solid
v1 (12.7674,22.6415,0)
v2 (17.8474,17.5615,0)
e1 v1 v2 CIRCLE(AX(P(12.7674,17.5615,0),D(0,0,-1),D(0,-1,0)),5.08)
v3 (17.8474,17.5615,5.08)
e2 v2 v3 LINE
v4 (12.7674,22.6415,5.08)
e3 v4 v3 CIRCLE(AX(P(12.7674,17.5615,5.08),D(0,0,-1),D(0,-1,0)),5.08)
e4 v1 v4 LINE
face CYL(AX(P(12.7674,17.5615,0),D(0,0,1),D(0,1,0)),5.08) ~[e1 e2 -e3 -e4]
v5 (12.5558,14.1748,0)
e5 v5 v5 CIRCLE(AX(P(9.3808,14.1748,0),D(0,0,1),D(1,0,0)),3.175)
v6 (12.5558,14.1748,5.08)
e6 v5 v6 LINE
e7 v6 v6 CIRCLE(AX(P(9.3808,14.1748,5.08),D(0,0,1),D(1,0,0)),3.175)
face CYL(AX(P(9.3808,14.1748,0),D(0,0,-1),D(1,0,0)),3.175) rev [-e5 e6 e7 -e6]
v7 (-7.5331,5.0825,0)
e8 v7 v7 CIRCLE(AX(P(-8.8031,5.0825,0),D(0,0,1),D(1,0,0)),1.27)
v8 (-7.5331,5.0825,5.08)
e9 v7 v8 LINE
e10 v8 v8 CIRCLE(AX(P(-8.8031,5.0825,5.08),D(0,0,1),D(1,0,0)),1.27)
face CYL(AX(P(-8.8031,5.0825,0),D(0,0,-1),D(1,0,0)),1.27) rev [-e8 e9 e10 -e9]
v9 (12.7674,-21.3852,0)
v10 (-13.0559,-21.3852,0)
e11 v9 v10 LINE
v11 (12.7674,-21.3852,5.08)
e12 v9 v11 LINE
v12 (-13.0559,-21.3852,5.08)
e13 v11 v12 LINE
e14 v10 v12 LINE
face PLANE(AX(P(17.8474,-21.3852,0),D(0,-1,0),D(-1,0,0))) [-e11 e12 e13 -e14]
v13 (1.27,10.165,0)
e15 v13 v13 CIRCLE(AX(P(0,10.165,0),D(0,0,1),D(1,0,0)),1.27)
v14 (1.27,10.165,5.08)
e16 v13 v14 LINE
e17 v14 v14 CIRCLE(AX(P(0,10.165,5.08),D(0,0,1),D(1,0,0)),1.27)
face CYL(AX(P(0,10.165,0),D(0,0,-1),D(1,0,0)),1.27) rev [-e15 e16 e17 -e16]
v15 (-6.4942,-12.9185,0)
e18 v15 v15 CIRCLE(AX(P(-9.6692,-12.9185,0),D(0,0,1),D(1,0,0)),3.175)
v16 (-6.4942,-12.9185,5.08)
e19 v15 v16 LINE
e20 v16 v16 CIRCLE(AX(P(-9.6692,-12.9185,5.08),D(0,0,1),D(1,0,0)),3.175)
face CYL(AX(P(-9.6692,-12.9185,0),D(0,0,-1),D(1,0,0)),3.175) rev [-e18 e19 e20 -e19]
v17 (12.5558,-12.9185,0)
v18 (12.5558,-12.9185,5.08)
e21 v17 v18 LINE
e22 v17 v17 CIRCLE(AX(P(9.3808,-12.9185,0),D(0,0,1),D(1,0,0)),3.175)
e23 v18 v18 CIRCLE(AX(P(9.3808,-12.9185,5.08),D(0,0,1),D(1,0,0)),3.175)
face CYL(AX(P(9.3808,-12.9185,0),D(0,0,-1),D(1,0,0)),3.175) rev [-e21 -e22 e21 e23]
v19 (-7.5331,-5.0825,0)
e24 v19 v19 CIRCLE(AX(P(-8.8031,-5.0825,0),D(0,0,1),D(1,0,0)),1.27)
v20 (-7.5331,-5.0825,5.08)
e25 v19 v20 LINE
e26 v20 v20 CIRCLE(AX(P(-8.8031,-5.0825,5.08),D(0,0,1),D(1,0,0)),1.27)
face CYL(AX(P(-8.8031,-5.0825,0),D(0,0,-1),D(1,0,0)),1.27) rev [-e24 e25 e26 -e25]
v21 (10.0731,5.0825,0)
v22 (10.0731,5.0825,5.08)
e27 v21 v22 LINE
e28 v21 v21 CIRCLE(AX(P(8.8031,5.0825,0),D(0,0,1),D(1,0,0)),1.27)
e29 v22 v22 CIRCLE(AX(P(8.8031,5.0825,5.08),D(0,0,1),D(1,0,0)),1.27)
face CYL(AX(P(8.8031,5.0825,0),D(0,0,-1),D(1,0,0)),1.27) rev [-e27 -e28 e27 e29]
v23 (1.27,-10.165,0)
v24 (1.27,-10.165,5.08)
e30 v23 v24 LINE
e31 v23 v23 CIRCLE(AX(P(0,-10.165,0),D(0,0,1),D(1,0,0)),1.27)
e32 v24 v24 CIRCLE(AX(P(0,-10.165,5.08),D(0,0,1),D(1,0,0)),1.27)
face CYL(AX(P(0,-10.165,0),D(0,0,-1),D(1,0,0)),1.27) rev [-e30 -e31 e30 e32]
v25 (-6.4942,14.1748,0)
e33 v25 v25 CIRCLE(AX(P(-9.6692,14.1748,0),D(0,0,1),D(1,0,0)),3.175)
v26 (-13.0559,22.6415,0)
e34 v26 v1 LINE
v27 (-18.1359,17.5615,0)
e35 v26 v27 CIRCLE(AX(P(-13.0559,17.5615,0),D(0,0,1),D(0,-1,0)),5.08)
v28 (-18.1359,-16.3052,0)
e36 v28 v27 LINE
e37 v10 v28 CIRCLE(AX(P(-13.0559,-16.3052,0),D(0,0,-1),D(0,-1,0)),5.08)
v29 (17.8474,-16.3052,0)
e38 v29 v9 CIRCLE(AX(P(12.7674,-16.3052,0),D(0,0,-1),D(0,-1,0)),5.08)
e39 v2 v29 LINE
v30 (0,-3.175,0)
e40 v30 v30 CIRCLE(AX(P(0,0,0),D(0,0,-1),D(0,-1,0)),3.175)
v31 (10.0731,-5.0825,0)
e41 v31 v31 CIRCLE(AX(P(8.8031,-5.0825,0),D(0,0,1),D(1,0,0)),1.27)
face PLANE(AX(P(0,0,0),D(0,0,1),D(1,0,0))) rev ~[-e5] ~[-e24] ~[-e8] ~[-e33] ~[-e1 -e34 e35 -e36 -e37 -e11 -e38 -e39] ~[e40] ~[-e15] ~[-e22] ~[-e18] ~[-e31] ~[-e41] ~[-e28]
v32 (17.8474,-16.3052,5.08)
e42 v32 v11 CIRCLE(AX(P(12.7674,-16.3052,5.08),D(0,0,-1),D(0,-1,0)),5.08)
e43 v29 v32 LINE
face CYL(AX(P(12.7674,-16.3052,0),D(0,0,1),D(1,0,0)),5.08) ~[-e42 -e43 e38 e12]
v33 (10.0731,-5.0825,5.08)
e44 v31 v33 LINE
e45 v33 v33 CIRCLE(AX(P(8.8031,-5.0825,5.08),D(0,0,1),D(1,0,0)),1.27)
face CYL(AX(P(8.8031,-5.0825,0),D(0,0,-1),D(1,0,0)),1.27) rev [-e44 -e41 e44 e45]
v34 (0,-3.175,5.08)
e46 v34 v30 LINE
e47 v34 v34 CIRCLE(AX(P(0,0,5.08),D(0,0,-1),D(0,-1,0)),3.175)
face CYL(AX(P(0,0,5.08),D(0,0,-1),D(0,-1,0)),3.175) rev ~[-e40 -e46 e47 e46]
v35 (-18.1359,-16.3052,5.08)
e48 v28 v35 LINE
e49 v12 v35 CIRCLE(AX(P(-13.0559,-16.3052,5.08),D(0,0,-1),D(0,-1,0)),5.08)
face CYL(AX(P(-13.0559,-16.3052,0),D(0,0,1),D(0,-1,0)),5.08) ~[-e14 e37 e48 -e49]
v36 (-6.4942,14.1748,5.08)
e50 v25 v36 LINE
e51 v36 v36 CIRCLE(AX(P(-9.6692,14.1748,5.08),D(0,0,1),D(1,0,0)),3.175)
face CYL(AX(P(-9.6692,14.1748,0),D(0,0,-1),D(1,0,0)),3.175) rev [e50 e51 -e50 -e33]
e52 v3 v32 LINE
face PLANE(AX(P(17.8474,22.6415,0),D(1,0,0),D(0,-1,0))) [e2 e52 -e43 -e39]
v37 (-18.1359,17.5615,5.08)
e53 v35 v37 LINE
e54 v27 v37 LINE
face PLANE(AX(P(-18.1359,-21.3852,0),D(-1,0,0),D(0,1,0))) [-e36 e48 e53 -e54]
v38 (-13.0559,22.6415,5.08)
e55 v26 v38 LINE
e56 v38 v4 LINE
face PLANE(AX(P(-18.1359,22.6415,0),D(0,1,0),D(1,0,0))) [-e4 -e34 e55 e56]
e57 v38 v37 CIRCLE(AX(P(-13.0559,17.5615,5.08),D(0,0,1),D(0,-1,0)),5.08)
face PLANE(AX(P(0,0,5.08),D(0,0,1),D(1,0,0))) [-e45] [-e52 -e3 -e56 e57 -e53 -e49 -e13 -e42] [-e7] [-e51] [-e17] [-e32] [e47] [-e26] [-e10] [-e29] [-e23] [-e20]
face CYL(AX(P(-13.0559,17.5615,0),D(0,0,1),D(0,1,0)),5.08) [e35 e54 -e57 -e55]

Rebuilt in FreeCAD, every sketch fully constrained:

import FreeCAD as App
import Part
import Sketcher
Q = App.Units.Quantity


def edges_at(feature, points):
    """Names of the edges that pass closest to the given points."""
    edges = feature.Shape.Edges
    near = lambda p: min(range(len(edges)), key=lambda i: edges[i].distToShape(Part.Vertex(*p))[0])
    return sorted({f"Edge{near(p) + 1}" for p in points})


def add_polygon(sketch, points):
    """Adds a closed chain of lines whose ends are joined by coincident constraints."""
    first, n = sketch.GeometryCount, len(points)
    for a, b in zip(points, points[1:] + points[:1]):
        sketch.addGeometry(Part.LineSegment(App.Vector(*a, 0), App.Vector(*b, 0)), False)
    for i in range(n):
        sketch.addConstraint(Sketcher.Constraint("Coincident", first + i, 2, first + (i + 1) % n, 1))

doc = App.newDocument("Part")
body = doc.addObject("PartDesign::Body", "Body")

# Sketch on XY plane
sketch1 = body.newObject("Sketcher::SketchObject", "Sketch")
sketch1.AttachmentSupport = (doc.getObject("XY_Plane"), [""])
sketch1.MapMode = "FlatFace"
add_polygon(sketch1, [(17.8, 22.6), (-18.1, 22.6), (-18.1, -21.4), (17.8, -21.4)])  # lines 0-3
sketch1.addGeometry(Part.Circle(App.Vector(-9.7, -12.9, 0), App.Vector(0, 0, 1), 3.2), False)  # 4
sketch1.addGeometry(Part.Circle(App.Vector(-8.8, -5.1, 0), App.Vector(0, 0, 1), 1.3), False)  # 5
sketch1.addGeometry(Part.Circle(App.Vector(9.4, -12.9, 0), App.Vector(0, 0, 1), 3.2), False)  # 6
sketch1.addGeometry(Part.Circle(App.Vector(0, -10.2, 0), App.Vector(0, 0, 1), 1.3), False)  # 7
sketch1.addGeometry(Part.Circle(App.Vector(8.8, -5.1, 0), App.Vector(0, 0, 1), 1.3), False)  # 8
sketch1.addGeometry(Part.Circle(App.Vector(-8.8, 5.1, 0), App.Vector(0, 0, 1), 1.3), False)  # 9
sketch1.addGeometry(Part.Circle(App.Vector(-9.7, 14.2, 0), App.Vector(0, 0, 1), 3.2), False)  # 10
sketch1.addGeometry(Part.Circle(App.Vector(8.8, 5.1, 0), App.Vector(0, 0, 1), 1.3), False)  # 11
sketch1.addGeometry(Part.Circle(App.Vector(0, 10.2, 0), App.Vector(0, 0, 1), 1.3), False)  # 12
sketch1.addGeometry(Part.Circle(App.Vector(9.4, 14.2, 0), App.Vector(0, 0, 1), 3.2), False)  # 13
sketch1.addConstraint(Sketcher.Constraint("Horizontal", 0))
sketch1.addConstraint(Sketcher.Constraint("Vertical", 1))
sketch1.addConstraint(Sketcher.Constraint("Horizontal", 2))
sketch1.addConstraint(Sketcher.Constraint("Vertical", 3))
sketch1.addConstraint(Sketcher.Constraint("Equal", 4, 6))
sketch1.addConstraint(Sketcher.Constraint("Equal", 5, 7))
sketch1.addConstraint(Sketcher.Constraint("Equal", 7, 8))
sketch1.addConstraint(Sketcher.Constraint("Equal", 8, 9))
sketch1.addConstraint(Sketcher.Constraint("Equal", 6, 10))
sketch1.addConstraint(Sketcher.Constraint("Equal", 9, 11))
sketch1.addConstraint(Sketcher.Constraint("Equal", 11, 12))
sketch1.addConstraint(Sketcher.Constraint("Equal", 10, 13))
sketch1.addConstraint(Sketcher.Constraint("Symmetric", 8, 3, 9, 3, -1, 1))
sketch1.addConstraint(Sketcher.Constraint("Symmetric", 5, 3, 11, 3, -1, 1))
sketch1.addConstraint(Sketcher.Constraint("Symmetric", 7, 3, 12, 3, -1, 1))
sketch1.addConstraint(Sketcher.Constraint("Symmetric", 5, 3, 8, 3, -2))
sketch1.addConstraint(Sketcher.Constraint("PointOnObject", 7, 3, -2))
sketch1.addConstraint(Sketcher.Constraint("Horizontal", 4, 3, 6, 3))
sketch1.addConstraint(Sketcher.Constraint("Horizontal", 10, 3, 13, 3))
sketch1.addConstraint(Sketcher.Constraint("Vertical", 4, 3, 10, 3))
sketch1.addConstraint(Sketcher.Constraint("Vertical", 6, 3, 13, 3))
sketch1.addConstraint(Sketcher.Constraint("Diameter", 5, Q("0.1 in")))
sketch1.addConstraint(Sketcher.Constraint("Diameter", 4, Q("0.25 in")))
sketch1.addConstraint(Sketcher.Constraint("DistanceX", 4, 3, 6, 3, Q("0.75 in")))
sketch1.addConstraint(Sketcher.Constraint("DistanceX", 0, 2, 10, 3, Q("8.4667 mm")))
sketch1.addConstraint(Sketcher.Constraint("DistanceY", 10, 3, 0, 2, Q("8.4667 mm")))
sketch1.addConstraint(Sketcher.Constraint("DistanceY", 1, 2, 4, 3, Q("8.4667 mm")))
sketch1.addConstraint(Sketcher.Constraint("DistanceX", 6, 3, 2, 2, Q("8.4666 mm")))
sketch1.addConstraint(Sketcher.Constraint("DistanceX", 0, 2, -1, 1, Q("0.714 in")))
sketch1.addConstraint(Sketcher.Constraint("DistanceY", 1, 2, 1, 1, Q("44.0267 mm")))
sketch1.addConstraint(Sketcher.Constraint("DistanceY", 4, 3, -1, 1, Q("0.5086 in")))
sketch1.addConstraint(Sketcher.Constraint("DistanceY", 5, 3, -1, 1, Q("0.2001 in")))
sketch1.addConstraint(Sketcher.Constraint("DistanceY", 7, 3, -1, 1, Q("0.4002 in")))
sketch1.addConstraint(Sketcher.Constraint("DistanceX", 4, 3, 5, 3, Q("0.0341 in")))
pad1 = body.newObject("PartDesign::Pad", "Pad")
pad1.Profile = sketch1
pad1.Length = Q("0.2 in")
doc.recompute()

fillet = body.newObject("PartDesign::Fillet", "Fillet")
fillet.Base = (pad1, edges_at(pad1, [
    (-18.136, -21.385, 2.54),
    (17.847, -21.385, 2.54),
    (17.847, 22.642, 2.54),
    (-18.136, 22.642, 2.54),
]))
fillet.Radius = Q("0.2 in")

# Sketch on XY plane
sketch2 = body.newObject("Sketcher::SketchObject", "Sketch001")
sketch2.AttachmentSupport = (doc.getObject("XY_Plane"), [""])
sketch2.MapMode = "FlatFace"
sketch2.AttachmentOffset = App.Placement(App.Vector(0, 0, 0.2 * 25.4), App.Rotation())
sketch2.addGeometry(Part.Circle(App.Vector(0, 0, 0), App.Vector(0, 0, 1), 3.2), False)
sketch2.addConstraint(Sketcher.Constraint("Coincident", 0, 3, -1, 1))
sketch2.addConstraint(Sketcher.Constraint("Diameter", 0, Q("0.25 in")))
doc.recompute()
hole = body.newObject("PartDesign::Hole", "Hole")
hole.Profile = sketch2
hole.ThreadType = "None"
hole.Diameter = Q("0.25 in")
hole.DepthType = "ThroughAll"

doc.recompute()
